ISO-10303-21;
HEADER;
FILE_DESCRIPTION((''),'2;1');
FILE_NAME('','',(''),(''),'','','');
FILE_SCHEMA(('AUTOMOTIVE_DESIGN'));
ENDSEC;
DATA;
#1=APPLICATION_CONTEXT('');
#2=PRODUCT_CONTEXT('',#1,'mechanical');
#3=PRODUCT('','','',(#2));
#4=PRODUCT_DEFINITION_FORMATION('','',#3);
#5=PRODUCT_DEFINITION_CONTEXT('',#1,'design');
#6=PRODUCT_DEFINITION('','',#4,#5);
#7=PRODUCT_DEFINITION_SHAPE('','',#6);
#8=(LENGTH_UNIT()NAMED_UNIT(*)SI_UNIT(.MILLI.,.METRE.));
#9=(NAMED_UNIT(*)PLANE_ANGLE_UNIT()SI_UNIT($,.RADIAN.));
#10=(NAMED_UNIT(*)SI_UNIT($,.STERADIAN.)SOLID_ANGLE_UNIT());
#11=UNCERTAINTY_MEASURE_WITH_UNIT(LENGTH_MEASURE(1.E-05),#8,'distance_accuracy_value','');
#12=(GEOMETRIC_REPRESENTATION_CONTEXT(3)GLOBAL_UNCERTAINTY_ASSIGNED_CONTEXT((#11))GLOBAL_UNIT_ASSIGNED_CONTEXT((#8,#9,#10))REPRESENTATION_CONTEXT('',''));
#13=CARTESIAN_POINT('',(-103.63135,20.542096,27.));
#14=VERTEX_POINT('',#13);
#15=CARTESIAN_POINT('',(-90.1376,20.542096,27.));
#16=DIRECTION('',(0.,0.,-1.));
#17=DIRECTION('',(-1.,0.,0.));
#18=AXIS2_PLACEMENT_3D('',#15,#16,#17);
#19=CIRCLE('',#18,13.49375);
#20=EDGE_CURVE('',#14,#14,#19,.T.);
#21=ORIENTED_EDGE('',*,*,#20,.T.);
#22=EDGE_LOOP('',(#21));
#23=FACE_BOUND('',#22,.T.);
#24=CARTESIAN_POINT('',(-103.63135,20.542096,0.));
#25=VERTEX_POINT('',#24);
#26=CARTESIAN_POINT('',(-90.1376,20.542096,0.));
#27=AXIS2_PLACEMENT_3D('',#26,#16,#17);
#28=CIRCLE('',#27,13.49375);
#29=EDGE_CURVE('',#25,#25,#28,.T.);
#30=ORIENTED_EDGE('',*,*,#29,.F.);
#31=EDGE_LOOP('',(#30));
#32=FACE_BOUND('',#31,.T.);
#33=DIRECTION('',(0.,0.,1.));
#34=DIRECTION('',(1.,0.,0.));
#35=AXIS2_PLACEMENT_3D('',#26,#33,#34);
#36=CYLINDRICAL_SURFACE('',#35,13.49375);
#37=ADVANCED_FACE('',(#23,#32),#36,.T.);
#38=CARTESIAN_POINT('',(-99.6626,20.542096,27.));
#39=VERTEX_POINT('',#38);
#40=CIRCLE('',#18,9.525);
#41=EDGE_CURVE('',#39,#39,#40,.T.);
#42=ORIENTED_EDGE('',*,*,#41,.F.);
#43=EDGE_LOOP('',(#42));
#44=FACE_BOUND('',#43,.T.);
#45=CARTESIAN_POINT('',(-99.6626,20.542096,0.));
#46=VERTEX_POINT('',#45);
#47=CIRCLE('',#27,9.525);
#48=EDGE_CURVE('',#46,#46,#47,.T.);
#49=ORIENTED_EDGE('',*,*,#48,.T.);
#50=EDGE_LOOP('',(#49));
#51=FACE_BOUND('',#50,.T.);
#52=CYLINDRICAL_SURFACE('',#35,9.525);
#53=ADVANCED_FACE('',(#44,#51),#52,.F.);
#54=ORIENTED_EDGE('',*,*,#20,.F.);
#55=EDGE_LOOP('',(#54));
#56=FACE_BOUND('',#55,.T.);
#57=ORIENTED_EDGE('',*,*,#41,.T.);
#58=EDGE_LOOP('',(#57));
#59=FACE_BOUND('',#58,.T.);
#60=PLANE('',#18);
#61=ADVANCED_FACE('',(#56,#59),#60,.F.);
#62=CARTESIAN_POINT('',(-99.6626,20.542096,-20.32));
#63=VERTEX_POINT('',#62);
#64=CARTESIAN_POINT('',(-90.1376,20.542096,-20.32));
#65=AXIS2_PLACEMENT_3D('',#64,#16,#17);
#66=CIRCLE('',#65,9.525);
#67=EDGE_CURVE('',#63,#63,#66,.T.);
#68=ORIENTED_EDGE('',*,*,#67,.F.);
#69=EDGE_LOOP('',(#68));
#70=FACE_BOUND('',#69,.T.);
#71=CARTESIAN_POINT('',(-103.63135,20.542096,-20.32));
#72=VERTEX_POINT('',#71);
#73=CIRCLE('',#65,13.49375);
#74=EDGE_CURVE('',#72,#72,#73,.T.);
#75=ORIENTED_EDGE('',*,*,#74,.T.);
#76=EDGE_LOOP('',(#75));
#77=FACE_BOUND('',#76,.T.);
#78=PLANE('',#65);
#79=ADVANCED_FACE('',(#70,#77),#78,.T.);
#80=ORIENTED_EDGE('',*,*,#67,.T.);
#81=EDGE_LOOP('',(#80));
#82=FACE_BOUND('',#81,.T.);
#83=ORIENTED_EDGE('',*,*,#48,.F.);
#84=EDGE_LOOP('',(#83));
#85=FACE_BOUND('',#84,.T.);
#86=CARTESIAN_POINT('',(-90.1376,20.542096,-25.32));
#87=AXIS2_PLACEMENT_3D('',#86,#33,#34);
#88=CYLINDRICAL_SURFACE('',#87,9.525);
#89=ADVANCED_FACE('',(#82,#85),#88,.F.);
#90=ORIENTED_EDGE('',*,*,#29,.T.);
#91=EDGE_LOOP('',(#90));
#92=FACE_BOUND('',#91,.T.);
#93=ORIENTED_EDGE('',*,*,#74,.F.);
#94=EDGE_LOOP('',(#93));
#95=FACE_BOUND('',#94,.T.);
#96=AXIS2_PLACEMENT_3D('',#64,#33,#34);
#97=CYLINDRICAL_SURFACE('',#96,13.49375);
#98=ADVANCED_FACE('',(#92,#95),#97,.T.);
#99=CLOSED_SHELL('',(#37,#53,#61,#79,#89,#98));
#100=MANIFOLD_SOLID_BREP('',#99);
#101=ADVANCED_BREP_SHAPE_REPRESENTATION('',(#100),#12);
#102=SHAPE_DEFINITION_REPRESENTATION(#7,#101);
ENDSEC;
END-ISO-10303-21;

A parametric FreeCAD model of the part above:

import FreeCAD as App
import Part
import Sketcher
Q = App.Units.Quantity

doc = App.newDocument("Part")
body = doc.addObject("PartDesign::Body", "Body")

# Sketch on XY plane
sketch1 = doc.addObject("Sketcher::SketchObject", "Sketch")
body.addObject(sketch1)
sketch1.AttachmentSupport = (doc.XY_Plane, [""])
sketch1.MapMode = "FlatFace"
sketch1.AttachmentOffset = App.Placement(App.Vector(0, 0, 27), App.Rotation())
sketch1.addGeometry(Part.Circle(App.Vector(-90.1376, 20.542096, 0), App.Vector(0, 0, 1), 13.49375), False)
sketch1.addConstraint(Sketcher.Constraint("Diameter", 0, Q("1.0625 in")))
sketch1.addConstraint(Sketcher.Constraint("DistanceX", 0, 3, -1, 1, 90.1376))
sketch1.addConstraint(Sketcher.Constraint("DistanceY", -1, 1, 0, 3, 20.542096))

# Sketch on XZ plane
sketch2 = doc.addObject("Sketcher::SketchObject", "Sketch001")
body.addObject(sketch2)
sketch2.AttachmentSupport = (doc.XZ_Plane, [""])
sketch2.MapMode = "FlatFace"
sketch2.AttachmentOffset = App.Placement(App.Vector(0, 0, -20.542096), App.Rotation())
sketch2.addGeometry(Part.LineSegment(App.Vector(-90.1376, 27, 0), App.Vector(-90.1376, 0, 0)), False)
sketch2.addGeometry(Part.LineSegment(App.Vector(-90.1376, 0, 0), App.Vector(-90.1376, -20.32, 0)), False)
sketch2.addConstraint(Sketcher.Constraint("Coincident", 0, 2, 1, 1))
sketch2.addConstraint(Sketcher.Constraint("Vertical", 0))
sketch2.addConstraint(Sketcher.Constraint("Vertical", 1))
sketch2.addConstraint(Sketcher.Constraint("PointOnObject", 0, 2, -1))
sketch2.addConstraint(Sketcher.Constraint("DistanceY", 1, 2, 1, 1, Q("0.8 in")))
sketch2.addConstraint(Sketcher.Constraint("DistanceY", 0, 2, 0, 1, 27.0))
sketch2.addConstraint(Sketcher.Constraint("DistanceX", 0, 1, -1, 1, 90.1376))
doc.recompute()

additivepipe = doc.addObject("PartDesign::AdditivePipe", "AdditivePipe")
body.addObject(additivepipe)
additivepipe.Profile = sketch1
additivepipe.Spine = (sketch2, ["Edge1", "Edge2"])

# Sketch on XY plane
sketch3 = doc.addObject("Sketcher::SketchObject", "Sketch002")
body.addObject(sketch3)
sketch3.AttachmentSupport = (doc.XY_Plane, [""])
sketch3.MapMode = "FlatFace"
sketch3.AttachmentOffset = App.Placement(App.Vector(0, 0, 27), App.Rotation())
sketch3.addGeometry(Part.Circle(App.Vector(-90.1376, 20.542096, 0), App.Vector(0, 0, 1), 9.525), False)
sketch3.addConstraint(Sketcher.Constraint("Diameter", 0, Q("0.75 in")))
sketch3.addConstraint(Sketcher.Constraint("DistanceX", 0, 3, -1, 1, 90.1376))
sketch3.addConstraint(Sketcher.Constraint("DistanceY", -1, 1, 0, 3, 20.542096))

# Sketch on XZ plane
sketch4 = doc.addObject("Sketcher::SketchObject", "Sketch003")
body.addObject(sketch4)
sketch4.AttachmentSupport = (doc.XZ_Plane, [""])
sketch4.MapMode = "FlatFace"
sketch4.AttachmentOffset = App.Placement(App.Vector(0, 0, -20.542096), App.Rotation())
sketch4.addGeometry(Part.LineSegment(App.Vector(-90.1376, 27, 0), App.Vector(-90.1376, 0, 0)), False)
sketch4.addGeometry(Part.LineSegment(App.Vector(-90.1376, 0, 0), App.Vector(-90.1376, -20.32, 0)), False)
sketch4.addConstraint(Sketcher.Constraint("Coincident", 0, 2, 1, 1))
sketch4.addConstraint(Sketcher.Constraint("Vertical", 0))
sketch4.addConstraint(Sketcher.Constraint("Vertical", 1))
sketch4.addConstraint(Sketcher.Constraint("PointOnObject", 0, 2, -1))
sketch4.addConstraint(Sketcher.Constraint("DistanceY", 1, 2, 1, 1, Q("0.8 in")))
sketch4.addConstraint(Sketcher.Constraint("DistanceY", 0, 2, 0, 1, 27.0))
sketch4.addConstraint(Sketcher.Constraint("DistanceX", 0, 1, -1, 1, 90.1376))
doc.recompute()

subtractivepipe = doc.addObject("PartDesign::SubtractivePipe", "SubtractivePipe")
body.addObject(subtractivepipe)
subtractivepipe.Profile = sketch3
subtractivepipe.Spine = (sketch4, ["Edge1", "Edge2"])

doc.recompute()
